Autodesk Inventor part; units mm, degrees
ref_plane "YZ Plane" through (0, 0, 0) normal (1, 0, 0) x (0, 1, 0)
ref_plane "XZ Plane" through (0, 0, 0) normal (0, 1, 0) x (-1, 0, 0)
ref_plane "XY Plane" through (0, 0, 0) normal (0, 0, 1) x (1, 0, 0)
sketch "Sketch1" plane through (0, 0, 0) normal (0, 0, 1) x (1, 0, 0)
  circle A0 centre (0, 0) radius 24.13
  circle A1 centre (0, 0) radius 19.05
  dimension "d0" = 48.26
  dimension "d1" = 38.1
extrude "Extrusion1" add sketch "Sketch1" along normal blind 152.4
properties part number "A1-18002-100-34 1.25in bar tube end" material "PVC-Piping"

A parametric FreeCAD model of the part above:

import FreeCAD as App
import Part
import Sketcher
from FreeCAD import Vector
Q = App.Units.Quantity

doc = App.newDocument("Part")
params = doc.addObject("Spreadsheet::Sheet", "Params")
for row, (alias, value) in enumerate([
    ("sketch1_diameter", "1.9 in"),
    ("sketch1_diameter2", "1.5 in"),
    ("pad1_length", "6 in"),
], start=1):
    params.set(f"A{row}", alias)
    params.set(f"B{row}", "=" + value)
    params.setAlias(f"B{row}", alias)

body = doc.addObject("PartDesign::Body", "Body")

# Sketch on XY plane
sketch1 = body.newObject("Sketcher::SketchObject", "Sketch")
sketch1.AttachmentSupport = (doc.getObject("XY_Plane"), [""])
sketch1.MapMode = "FlatFace"
sketch1.addGeometry(Part.Circle(Vector(0, 0, 0), Vector(0, 0, 1), 24.13), False)
sketch1.addGeometry(Part.Circle(Vector(0, 0, 0), Vector(0, 0, 1), 19.05), False)
sketch1.addConstraint(Sketcher.Constraint("Coincident", 0, 3, -1, 1))
sketch1.addConstraint(Sketcher.Constraint("Coincident", 1, 3, -1, 1))
sketch1.addConstraint(Sketcher.Constraint("Diameter", 0, Q("1.9 in")))
sketch1.addConstraint(Sketcher.Constraint("Diameter", 1, Q("1.5 in")))
sketch1.setExpression("Constraints[2]", "Params.sketch1_diameter")
sketch1.setExpression("Constraints[3]", "Params.sketch1_diameter2")
pad1 = body.newObject("PartDesign::Pad", "Pad")
pad1.Profile = sketch1
pad1.setExpression("Length", "Params.pad1_length")

doc.recompute()
